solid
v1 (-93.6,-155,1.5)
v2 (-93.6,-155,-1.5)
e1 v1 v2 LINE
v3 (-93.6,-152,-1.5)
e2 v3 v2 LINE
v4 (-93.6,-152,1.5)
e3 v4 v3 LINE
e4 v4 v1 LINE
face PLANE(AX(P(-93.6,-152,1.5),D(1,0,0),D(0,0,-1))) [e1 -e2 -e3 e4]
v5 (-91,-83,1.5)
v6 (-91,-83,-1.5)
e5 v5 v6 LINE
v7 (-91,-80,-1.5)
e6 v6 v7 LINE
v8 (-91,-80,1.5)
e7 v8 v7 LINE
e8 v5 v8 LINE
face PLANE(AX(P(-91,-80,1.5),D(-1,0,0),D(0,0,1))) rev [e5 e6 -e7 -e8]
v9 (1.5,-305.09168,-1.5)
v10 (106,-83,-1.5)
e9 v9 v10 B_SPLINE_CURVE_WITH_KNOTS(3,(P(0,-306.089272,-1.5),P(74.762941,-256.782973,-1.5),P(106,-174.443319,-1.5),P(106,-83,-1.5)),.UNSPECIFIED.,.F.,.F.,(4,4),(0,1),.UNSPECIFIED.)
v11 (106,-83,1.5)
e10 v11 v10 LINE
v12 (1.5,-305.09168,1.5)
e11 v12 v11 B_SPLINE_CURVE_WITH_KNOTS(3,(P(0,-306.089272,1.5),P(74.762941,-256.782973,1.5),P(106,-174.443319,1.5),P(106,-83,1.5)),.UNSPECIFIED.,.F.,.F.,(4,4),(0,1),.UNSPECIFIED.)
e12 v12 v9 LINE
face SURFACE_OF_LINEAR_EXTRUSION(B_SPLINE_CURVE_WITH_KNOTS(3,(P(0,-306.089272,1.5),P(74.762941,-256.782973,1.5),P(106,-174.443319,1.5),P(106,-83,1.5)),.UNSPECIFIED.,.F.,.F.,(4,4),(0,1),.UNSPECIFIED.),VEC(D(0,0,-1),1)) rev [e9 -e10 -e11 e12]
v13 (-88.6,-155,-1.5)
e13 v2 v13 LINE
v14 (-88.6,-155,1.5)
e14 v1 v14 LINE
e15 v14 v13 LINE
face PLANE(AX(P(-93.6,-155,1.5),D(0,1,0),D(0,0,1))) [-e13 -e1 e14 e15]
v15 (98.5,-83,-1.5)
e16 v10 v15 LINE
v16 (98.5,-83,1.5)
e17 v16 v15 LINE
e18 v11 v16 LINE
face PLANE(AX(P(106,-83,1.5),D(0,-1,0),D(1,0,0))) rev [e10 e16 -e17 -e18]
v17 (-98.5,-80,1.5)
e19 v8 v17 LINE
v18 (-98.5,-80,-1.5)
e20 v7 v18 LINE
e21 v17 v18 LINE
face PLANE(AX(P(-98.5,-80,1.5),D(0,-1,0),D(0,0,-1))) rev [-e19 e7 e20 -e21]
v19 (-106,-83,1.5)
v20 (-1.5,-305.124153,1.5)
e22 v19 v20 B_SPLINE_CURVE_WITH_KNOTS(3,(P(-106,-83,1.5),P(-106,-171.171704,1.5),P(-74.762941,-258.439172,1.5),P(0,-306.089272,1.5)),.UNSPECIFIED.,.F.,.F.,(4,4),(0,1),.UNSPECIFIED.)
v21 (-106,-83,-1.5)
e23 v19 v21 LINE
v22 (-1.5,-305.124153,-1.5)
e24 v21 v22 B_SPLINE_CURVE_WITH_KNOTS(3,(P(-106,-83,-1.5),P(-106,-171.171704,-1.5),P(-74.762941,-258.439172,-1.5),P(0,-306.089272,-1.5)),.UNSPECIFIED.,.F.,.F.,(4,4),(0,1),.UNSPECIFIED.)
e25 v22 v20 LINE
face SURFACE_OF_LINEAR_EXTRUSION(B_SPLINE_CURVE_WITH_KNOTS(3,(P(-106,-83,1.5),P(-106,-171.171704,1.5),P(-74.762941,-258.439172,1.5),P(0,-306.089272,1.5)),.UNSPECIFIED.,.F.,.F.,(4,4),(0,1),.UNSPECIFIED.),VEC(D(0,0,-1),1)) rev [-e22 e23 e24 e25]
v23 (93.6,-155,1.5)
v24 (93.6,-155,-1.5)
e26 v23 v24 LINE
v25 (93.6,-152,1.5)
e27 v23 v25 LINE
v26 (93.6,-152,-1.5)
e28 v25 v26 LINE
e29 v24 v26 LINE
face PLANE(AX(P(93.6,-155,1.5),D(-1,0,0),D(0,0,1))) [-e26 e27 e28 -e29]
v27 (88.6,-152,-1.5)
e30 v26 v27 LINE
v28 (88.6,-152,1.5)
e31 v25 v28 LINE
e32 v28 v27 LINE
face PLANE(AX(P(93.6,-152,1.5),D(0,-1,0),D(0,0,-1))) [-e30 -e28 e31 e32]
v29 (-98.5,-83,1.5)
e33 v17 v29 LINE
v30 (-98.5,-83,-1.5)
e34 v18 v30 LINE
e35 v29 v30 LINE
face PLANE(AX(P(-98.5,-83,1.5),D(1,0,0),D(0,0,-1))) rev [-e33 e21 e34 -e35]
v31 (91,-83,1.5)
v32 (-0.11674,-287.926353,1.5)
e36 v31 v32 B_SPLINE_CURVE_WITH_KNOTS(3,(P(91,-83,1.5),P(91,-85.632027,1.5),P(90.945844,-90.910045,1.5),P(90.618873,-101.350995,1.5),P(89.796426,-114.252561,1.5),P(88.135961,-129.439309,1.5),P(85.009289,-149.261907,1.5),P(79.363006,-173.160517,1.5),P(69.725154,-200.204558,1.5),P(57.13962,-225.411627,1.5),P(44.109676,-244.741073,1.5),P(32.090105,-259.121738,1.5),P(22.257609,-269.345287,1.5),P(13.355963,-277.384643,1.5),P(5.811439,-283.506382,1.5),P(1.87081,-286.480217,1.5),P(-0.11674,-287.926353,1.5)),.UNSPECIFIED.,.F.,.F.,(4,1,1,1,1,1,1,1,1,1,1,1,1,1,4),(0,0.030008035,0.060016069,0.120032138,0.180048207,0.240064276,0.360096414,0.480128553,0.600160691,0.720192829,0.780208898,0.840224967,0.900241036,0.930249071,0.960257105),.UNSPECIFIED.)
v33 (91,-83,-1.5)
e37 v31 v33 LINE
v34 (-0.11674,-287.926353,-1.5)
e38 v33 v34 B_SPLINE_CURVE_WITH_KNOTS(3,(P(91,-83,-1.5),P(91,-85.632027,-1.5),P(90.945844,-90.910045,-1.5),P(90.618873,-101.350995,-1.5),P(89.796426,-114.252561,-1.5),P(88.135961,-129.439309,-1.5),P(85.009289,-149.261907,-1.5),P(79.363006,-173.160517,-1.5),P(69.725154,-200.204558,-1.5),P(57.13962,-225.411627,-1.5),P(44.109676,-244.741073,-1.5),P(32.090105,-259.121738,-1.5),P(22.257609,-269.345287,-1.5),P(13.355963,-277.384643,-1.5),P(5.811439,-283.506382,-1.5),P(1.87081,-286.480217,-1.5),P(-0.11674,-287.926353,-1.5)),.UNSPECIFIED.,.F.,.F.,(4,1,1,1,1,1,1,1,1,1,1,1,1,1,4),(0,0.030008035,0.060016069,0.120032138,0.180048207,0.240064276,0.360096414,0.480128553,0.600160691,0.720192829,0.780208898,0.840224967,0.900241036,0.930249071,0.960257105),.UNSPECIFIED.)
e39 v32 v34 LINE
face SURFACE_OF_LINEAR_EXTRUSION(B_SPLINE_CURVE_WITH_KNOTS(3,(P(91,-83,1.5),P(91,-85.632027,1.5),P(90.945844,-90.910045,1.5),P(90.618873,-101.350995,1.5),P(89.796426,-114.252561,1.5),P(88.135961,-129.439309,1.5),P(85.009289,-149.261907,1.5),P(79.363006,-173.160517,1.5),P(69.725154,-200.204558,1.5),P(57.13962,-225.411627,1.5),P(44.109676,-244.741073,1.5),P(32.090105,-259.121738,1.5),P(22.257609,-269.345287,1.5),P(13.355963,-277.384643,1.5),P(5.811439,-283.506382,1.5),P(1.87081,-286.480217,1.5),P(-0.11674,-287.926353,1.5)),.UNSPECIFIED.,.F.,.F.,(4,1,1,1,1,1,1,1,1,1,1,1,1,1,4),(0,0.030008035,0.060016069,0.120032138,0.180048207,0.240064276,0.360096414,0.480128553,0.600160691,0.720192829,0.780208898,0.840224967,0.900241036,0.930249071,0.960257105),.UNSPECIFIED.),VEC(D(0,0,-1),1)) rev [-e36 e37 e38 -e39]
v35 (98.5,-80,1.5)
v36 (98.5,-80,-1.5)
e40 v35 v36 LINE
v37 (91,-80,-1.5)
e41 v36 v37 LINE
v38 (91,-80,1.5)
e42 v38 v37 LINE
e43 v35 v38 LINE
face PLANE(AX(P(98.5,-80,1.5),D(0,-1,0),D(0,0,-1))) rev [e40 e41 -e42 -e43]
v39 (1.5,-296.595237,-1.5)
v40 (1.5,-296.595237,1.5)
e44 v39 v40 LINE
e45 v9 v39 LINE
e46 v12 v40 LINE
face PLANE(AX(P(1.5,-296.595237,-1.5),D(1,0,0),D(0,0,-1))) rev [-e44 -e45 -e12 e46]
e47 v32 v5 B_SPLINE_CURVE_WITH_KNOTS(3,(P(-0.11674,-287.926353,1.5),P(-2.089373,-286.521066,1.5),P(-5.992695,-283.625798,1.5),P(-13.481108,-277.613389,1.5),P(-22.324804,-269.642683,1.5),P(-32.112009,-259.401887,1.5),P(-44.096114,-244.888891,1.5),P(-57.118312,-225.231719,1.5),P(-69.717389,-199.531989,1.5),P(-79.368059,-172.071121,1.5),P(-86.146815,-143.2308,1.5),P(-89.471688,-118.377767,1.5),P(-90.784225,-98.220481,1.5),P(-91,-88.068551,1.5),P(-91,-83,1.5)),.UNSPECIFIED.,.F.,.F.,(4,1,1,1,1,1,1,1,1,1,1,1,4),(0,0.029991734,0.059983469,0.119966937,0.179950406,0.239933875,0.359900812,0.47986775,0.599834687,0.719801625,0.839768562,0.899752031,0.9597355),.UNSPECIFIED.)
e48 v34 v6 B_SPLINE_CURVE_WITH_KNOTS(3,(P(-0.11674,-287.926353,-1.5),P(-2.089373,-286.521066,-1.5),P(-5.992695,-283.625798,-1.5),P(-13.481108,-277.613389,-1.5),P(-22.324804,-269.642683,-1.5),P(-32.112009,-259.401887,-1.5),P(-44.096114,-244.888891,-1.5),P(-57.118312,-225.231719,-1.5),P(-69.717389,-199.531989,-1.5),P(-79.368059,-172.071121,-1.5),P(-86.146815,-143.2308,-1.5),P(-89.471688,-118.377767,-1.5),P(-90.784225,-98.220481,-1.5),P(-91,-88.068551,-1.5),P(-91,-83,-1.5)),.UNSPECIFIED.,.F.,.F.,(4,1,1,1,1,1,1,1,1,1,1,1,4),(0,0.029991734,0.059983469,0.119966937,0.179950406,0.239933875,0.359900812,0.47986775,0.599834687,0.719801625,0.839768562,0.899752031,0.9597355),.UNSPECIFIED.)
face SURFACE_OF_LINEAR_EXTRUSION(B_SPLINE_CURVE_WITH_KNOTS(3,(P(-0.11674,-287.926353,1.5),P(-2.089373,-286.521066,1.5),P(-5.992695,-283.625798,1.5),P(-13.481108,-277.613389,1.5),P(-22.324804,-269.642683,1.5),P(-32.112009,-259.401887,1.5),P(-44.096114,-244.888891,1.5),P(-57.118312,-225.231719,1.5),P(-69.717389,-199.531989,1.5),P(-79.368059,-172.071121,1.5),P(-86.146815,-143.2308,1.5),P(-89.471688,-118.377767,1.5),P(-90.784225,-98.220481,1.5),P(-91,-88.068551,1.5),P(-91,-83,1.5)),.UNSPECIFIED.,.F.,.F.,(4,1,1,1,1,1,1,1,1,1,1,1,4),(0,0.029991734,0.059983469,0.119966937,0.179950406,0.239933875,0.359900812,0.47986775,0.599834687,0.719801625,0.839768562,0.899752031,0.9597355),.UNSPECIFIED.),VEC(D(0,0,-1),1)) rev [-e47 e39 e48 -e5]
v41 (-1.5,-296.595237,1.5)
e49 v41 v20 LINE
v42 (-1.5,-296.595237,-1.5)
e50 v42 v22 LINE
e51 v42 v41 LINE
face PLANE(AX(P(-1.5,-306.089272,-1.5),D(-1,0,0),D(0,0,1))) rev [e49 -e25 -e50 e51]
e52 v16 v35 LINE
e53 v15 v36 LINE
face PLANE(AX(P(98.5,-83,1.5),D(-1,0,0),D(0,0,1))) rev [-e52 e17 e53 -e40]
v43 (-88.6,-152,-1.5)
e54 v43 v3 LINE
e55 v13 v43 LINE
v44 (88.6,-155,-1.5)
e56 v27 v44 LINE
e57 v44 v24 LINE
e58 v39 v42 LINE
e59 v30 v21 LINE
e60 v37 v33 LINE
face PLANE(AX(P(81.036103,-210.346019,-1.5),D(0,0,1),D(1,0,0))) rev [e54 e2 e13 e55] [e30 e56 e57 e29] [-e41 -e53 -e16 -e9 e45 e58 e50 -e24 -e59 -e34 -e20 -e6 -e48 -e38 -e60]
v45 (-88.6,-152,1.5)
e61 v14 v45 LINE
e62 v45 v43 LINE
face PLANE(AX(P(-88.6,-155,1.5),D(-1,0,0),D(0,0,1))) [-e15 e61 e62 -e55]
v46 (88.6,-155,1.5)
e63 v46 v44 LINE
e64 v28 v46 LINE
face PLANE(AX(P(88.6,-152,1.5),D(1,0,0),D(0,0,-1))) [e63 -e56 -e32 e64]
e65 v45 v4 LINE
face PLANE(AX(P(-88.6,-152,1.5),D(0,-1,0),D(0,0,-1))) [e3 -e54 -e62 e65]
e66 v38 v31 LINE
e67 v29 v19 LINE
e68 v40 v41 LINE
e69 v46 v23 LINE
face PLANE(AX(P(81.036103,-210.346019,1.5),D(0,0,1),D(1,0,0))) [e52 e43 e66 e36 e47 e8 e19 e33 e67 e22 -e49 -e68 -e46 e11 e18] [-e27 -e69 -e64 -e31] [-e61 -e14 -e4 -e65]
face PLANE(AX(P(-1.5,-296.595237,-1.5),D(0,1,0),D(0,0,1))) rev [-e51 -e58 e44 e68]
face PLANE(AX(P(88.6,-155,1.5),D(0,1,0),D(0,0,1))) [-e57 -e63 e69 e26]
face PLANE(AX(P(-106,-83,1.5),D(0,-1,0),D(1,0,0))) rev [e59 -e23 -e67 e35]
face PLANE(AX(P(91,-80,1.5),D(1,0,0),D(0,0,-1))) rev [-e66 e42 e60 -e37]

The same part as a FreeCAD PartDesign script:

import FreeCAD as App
import Part
import Sketcher

V = App.Vector


def add_polygon(sketch, points):
    """Adds a closed chain of lines whose ends are joined by coincident constraints."""
    first, n = sketch.GeometryCount, len(points)
    for a, b in zip(points, points[1:] + points[:1]):
        sketch.addGeometry(Part.LineSegment(App.Vector(*a, 0), App.Vector(*b, 0)), False)
    for i in range(n):
        sketch.addConstraint(Sketcher.Constraint("Coincident", first + i, 2, first + (i + 1) % n, 1))

doc = App.newDocument("Part")
body = doc.addObject("PartDesign::Body", "Body")

sketch1 = body.newObject("Sketcher::SketchObject", "Sketch")
sketch1.AttachmentSupport = (doc.getObject("XY_Plane"), [""])
sketch1.MapMode = "FlatFace"
sketch1.addGeometry(Part.LineSegment(V(-98.5, -83, 0), V(-106, -83, 0)), False)
sketch1.addGeometry(Part.BSplineCurve([V(-106, -83, 0), V(-106, -171.171704, 0), V(-74.762941, -258.439172, 0), V(0, -306.089272, 0)], [4, 4], [0, 1], False, 3, [1, 1, 1, 1], False), False)
sketch1.addGeometry(Part.BSplineCurve([V(106, -83, 0), V(106, -174.443319, 0), V(74.762941, -256.782973, 0), V(0, -306.089272, 0)], [4, 4], [0, 1], False, 3, [1, 1, 1, 1], False), False)
sketch1.addGeometry(Part.LineSegment(V(106, -83, 0), V(98.5, -83, 0)), False)
sketch1.addGeometry(Part.LineSegment(V(98.5, -83, 0), V(98.5, -80, 0)), False)
sketch1.addGeometry(Part.LineSegment(V(98.5, -80, 0), V(91, -80, 0)), False)
sketch1.addGeometry(Part.LineSegment(V(91, -80, 0), V(91, -83, 0)), False)
sketch1.addGeometry(Part.BSplineCurve([V(-0.11674, -287.926353, 0), V(1.87081, -286.480217, 0), V(5.811439, -283.506382, 0), V(13.355963, -277.384643, 0), V(22.257609, -269.345287, 0), V(32.090105, -259.121738, 0), V(44.109676, -244.741073, 0), V(57.13962, -225.411627, 0), V(69.725154, -200.204558, 0), V(79.363006, -173.160517, 0), V(85.009289, -149.261907, 0), V(88.135961, -129.439309, 0), V(89.796426, -114.252561, 0), V(90.618873, -101.350995, 0), V(90.945844, -90.910045, 0), V(91, -85.632027, 0), V(91, -83, 0)], [4, 1, 1, 1, 1, 1, 1, 1, 1, 1, 1, 1, 1, 1, 4], [0, 0.030008035, 0.060016069, 0.120032138, 0.180048207, 0.240064276, 0.360096414, 0.480128553, 0.600160691, 0.720192829, 0.780208898, 0.840224967, 0.900241036, 0.930249071, 0.960257105], False, 3, [1, 1, 1, 1, 1, 1, 1, 1, 1, 1, 1, 1, 1, 1, 1, 1, 1], False), False)
sketch1.addGeometry(Part.BSplineCurve([V(-91, -83, 0), V(-91, -88.068551, 0), V(-90.784225, -98.220481, 0), V(-89.471688, -118.377767, 0), V(-86.146815, -143.2308, 0), V(-79.368059, -172.071121, 0), V(-69.717389, -199.531989, 0), V(-57.118312, -225.231719, 0), V(-44.096114, -244.888891, 0), V(-32.112009, -259.401887, 0), V(-22.324804, -269.642683, 0), V(-13.481108, -277.613389, 0), V(-5.992695, -283.625798, 0), V(-2.089373, -286.521066, 0), V(-0.11674, -287.926353, 0)], [4, 1, 1, 1, 1, 1, 1, 1, 1, 1, 1, 1, 4], [0, 0.059983469, 0.119966937, 0.239933875, 0.359900812, 0.47986775, 0.599834687, 0.719801625, 0.779785093, 0.839768562, 0.899752031, 0.929743765, 0.9597355], False, 3, [1, 1, 1, 1, 1, 1, 1, 1, 1, 1, 1, 1, 1, 1, 1], False), False)
sketch1.addGeometry(Part.LineSegment(V(-91, -83, 0), V(-91, -80, 0)), False)
sketch1.addGeometry(Part.LineSegment(V(-91, -80, 0), V(-98.5, -80, 0)), False)
sketch1.addGeometry(Part.LineSegment(V(-98.5, -80, 0), V(-98.5, -83, 0)), False)
add_polygon(sketch1, [(88.6, -155), (88.6, -152), (93.6, -152), (93.6, -155)])
add_polygon(sketch1, [(-93.6, -155), (-93.6, -152), (-88.6, -152), (-88.6, -155)])
sketch1.addConstraint(Sketcher.Constraint("Block", 1))
sketch1.addConstraint(Sketcher.Constraint("Block", 2))
sketch1.addConstraint(Sketcher.Constraint("Block", 7))
sketch1.addConstraint(Sketcher.Constraint("Block", 8))
sketch1.addConstraint(Sketcher.Constraint("Coincident", 0, 2, 1, 1))
sketch1.addConstraint(Sketcher.Constraint("Coincident", 2, 1, 3, 1))
sketch1.addConstraint(Sketcher.Constraint("Coincident", 3, 2, 4, 1))
sketch1.addConstraint(Sketcher.Constraint("Coincident", 4, 2, 5, 1))
sketch1.addConstraint(Sketcher.Constraint("Coincident", 5, 2, 6, 1))
sketch1.addConstraint(Sketcher.Constraint("Coincident", 6, 2, 7, 2))
sketch1.addConstraint(Sketcher.Constraint("Coincident", 8, 1, 9, 1))
sketch1.addConstraint(Sketcher.Constraint("Coincident", 9, 2, 10, 1))
sketch1.addConstraint(Sketcher.Constraint("Coincident", 10, 2, 11, 1))
sketch1.addConstraint(Sketcher.Constraint("Coincident", 11, 2, 0, 1))
sketch1.addConstraint(Sketcher.Constraint("Horizontal", 0))
sketch1.addConstraint(Sketcher.Constraint("Horizontal", 3))
sketch1.addConstraint(Sketcher.Constraint("Vertical", 4))
sketch1.addConstraint(Sketcher.Constraint("Horizontal", 5))
sketch1.addConstraint(Sketcher.Constraint("Vertical", 6))
sketch1.addConstraint(Sketcher.Constraint("Vertical", 9))
sketch1.addConstraint(Sketcher.Constraint("Horizontal", 10))
sketch1.addConstraint(Sketcher.Constraint("Vertical", 11))
sketch1.addConstraint(Sketcher.Constraint("Vertical", 12))
sketch1.addConstraint(Sketcher.Constraint("Horizontal", 13))
sketch1.addConstraint(Sketcher.Constraint("Vertical", 14))
sketch1.addConstraint(Sketcher.Constraint("Horizontal", 15))
sketch1.addConstraint(Sketcher.Constraint("Vertical", 16))
sketch1.addConstraint(Sketcher.Constraint("Horizontal", 17))
sketch1.addConstraint(Sketcher.Constraint("Vertical", 18))
sketch1.addConstraint(Sketcher.Constraint("Horizontal", 19))
sketch1.addConstraint(Sketcher.Constraint("DistanceX", 13, 1, 13, 2, 5.0))
sketch1.addConstraint(Sketcher.Constraint("DistanceX", 17, 1, 17, 2, 5.0))
sketch1.addConstraint(Sketcher.Constraint("DistanceY", 4, 1, 4, 2, 3.0))
sketch1.addConstraint(Sketcher.Constraint("DistanceY", 9, 1, 9, 2, 3.0))
sketch1.addConstraint(Sketcher.Constraint("DistanceY", 12, 1, 12, 2, 3.0))
sketch1.addConstraint(Sketcher.Constraint("DistanceY", 16, 1, 16, 2, 3.0))
sketch1.addConstraint(Sketcher.Constraint("DistanceX", 0, 2, 0, 1, 7.5))
sketch1.addConstraint(Sketcher.Constraint("DistanceX", 3, 2, 3, 1, 7.5))
sketch1.addConstraint(Sketcher.Constraint("DistanceY", 12, 2, -1, 1, 152.0))
sketch1.addConstraint(Sketcher.Constraint("DistanceY", 16, 2, -1, 1, 152.0))
sketch1.addConstraint(Sketcher.Constraint("DistanceX", -1, 1, 12, 2, 88.6))
sketch1.addConstraint(Sketcher.Constraint("DistanceX", 16, 2, -1, 1, 93.6))
pad1 = body.newObject("PartDesign::Pad", "Pad")
pad1.Profile = sketch1
pad1.Length = 3
pad1.Midplane = True

sketch2 = body.newObject("Sketcher::SketchObject", "Sketch001")
sketch2.AttachmentSupport = (doc.getObject("XY_Plane"), [""])
sketch2.MapMode = "FlatFace"
sketch2.AttachmentOffset = App.Placement(V(0, 0, 1.5), App.Rotation())
add_polygon(sketch2, [(-1.5, -296.6), (-1.5, -306.1), (1.5, -306.1), (1.5, -296.6)])
sketch2.addConstraint(Sketcher.Constraint("Vertical", 0))
sketch2.addConstraint(Sketcher.Constraint("Horizontal", 1))
sketch2.addConstraint(Sketcher.Constraint("Vertical", 2))
sketch2.addConstraint(Sketcher.Constraint("Horizontal", 3))
sketch2.addConstraint(Sketcher.Constraint("DistanceX", 1, 1, 1, 2, 3.0))
sketch2.addConstraint(Sketcher.Constraint("DistanceX", 0, 2, -1, 1, 1.5))
sketch2.addConstraint(Sketcher.Constraint("DistanceY", 0, 2, 0, 1, 9.494035))
sketch2.addConstraint(Sketcher.Constraint("DistanceY", 0, 2, -1, 1, 306.089272))
pocket1 = body.newObject("PartDesign::Pocket", "Pocket")
pocket1.Profile = sketch2
pocket1.Length = 3

doc.recompute()
